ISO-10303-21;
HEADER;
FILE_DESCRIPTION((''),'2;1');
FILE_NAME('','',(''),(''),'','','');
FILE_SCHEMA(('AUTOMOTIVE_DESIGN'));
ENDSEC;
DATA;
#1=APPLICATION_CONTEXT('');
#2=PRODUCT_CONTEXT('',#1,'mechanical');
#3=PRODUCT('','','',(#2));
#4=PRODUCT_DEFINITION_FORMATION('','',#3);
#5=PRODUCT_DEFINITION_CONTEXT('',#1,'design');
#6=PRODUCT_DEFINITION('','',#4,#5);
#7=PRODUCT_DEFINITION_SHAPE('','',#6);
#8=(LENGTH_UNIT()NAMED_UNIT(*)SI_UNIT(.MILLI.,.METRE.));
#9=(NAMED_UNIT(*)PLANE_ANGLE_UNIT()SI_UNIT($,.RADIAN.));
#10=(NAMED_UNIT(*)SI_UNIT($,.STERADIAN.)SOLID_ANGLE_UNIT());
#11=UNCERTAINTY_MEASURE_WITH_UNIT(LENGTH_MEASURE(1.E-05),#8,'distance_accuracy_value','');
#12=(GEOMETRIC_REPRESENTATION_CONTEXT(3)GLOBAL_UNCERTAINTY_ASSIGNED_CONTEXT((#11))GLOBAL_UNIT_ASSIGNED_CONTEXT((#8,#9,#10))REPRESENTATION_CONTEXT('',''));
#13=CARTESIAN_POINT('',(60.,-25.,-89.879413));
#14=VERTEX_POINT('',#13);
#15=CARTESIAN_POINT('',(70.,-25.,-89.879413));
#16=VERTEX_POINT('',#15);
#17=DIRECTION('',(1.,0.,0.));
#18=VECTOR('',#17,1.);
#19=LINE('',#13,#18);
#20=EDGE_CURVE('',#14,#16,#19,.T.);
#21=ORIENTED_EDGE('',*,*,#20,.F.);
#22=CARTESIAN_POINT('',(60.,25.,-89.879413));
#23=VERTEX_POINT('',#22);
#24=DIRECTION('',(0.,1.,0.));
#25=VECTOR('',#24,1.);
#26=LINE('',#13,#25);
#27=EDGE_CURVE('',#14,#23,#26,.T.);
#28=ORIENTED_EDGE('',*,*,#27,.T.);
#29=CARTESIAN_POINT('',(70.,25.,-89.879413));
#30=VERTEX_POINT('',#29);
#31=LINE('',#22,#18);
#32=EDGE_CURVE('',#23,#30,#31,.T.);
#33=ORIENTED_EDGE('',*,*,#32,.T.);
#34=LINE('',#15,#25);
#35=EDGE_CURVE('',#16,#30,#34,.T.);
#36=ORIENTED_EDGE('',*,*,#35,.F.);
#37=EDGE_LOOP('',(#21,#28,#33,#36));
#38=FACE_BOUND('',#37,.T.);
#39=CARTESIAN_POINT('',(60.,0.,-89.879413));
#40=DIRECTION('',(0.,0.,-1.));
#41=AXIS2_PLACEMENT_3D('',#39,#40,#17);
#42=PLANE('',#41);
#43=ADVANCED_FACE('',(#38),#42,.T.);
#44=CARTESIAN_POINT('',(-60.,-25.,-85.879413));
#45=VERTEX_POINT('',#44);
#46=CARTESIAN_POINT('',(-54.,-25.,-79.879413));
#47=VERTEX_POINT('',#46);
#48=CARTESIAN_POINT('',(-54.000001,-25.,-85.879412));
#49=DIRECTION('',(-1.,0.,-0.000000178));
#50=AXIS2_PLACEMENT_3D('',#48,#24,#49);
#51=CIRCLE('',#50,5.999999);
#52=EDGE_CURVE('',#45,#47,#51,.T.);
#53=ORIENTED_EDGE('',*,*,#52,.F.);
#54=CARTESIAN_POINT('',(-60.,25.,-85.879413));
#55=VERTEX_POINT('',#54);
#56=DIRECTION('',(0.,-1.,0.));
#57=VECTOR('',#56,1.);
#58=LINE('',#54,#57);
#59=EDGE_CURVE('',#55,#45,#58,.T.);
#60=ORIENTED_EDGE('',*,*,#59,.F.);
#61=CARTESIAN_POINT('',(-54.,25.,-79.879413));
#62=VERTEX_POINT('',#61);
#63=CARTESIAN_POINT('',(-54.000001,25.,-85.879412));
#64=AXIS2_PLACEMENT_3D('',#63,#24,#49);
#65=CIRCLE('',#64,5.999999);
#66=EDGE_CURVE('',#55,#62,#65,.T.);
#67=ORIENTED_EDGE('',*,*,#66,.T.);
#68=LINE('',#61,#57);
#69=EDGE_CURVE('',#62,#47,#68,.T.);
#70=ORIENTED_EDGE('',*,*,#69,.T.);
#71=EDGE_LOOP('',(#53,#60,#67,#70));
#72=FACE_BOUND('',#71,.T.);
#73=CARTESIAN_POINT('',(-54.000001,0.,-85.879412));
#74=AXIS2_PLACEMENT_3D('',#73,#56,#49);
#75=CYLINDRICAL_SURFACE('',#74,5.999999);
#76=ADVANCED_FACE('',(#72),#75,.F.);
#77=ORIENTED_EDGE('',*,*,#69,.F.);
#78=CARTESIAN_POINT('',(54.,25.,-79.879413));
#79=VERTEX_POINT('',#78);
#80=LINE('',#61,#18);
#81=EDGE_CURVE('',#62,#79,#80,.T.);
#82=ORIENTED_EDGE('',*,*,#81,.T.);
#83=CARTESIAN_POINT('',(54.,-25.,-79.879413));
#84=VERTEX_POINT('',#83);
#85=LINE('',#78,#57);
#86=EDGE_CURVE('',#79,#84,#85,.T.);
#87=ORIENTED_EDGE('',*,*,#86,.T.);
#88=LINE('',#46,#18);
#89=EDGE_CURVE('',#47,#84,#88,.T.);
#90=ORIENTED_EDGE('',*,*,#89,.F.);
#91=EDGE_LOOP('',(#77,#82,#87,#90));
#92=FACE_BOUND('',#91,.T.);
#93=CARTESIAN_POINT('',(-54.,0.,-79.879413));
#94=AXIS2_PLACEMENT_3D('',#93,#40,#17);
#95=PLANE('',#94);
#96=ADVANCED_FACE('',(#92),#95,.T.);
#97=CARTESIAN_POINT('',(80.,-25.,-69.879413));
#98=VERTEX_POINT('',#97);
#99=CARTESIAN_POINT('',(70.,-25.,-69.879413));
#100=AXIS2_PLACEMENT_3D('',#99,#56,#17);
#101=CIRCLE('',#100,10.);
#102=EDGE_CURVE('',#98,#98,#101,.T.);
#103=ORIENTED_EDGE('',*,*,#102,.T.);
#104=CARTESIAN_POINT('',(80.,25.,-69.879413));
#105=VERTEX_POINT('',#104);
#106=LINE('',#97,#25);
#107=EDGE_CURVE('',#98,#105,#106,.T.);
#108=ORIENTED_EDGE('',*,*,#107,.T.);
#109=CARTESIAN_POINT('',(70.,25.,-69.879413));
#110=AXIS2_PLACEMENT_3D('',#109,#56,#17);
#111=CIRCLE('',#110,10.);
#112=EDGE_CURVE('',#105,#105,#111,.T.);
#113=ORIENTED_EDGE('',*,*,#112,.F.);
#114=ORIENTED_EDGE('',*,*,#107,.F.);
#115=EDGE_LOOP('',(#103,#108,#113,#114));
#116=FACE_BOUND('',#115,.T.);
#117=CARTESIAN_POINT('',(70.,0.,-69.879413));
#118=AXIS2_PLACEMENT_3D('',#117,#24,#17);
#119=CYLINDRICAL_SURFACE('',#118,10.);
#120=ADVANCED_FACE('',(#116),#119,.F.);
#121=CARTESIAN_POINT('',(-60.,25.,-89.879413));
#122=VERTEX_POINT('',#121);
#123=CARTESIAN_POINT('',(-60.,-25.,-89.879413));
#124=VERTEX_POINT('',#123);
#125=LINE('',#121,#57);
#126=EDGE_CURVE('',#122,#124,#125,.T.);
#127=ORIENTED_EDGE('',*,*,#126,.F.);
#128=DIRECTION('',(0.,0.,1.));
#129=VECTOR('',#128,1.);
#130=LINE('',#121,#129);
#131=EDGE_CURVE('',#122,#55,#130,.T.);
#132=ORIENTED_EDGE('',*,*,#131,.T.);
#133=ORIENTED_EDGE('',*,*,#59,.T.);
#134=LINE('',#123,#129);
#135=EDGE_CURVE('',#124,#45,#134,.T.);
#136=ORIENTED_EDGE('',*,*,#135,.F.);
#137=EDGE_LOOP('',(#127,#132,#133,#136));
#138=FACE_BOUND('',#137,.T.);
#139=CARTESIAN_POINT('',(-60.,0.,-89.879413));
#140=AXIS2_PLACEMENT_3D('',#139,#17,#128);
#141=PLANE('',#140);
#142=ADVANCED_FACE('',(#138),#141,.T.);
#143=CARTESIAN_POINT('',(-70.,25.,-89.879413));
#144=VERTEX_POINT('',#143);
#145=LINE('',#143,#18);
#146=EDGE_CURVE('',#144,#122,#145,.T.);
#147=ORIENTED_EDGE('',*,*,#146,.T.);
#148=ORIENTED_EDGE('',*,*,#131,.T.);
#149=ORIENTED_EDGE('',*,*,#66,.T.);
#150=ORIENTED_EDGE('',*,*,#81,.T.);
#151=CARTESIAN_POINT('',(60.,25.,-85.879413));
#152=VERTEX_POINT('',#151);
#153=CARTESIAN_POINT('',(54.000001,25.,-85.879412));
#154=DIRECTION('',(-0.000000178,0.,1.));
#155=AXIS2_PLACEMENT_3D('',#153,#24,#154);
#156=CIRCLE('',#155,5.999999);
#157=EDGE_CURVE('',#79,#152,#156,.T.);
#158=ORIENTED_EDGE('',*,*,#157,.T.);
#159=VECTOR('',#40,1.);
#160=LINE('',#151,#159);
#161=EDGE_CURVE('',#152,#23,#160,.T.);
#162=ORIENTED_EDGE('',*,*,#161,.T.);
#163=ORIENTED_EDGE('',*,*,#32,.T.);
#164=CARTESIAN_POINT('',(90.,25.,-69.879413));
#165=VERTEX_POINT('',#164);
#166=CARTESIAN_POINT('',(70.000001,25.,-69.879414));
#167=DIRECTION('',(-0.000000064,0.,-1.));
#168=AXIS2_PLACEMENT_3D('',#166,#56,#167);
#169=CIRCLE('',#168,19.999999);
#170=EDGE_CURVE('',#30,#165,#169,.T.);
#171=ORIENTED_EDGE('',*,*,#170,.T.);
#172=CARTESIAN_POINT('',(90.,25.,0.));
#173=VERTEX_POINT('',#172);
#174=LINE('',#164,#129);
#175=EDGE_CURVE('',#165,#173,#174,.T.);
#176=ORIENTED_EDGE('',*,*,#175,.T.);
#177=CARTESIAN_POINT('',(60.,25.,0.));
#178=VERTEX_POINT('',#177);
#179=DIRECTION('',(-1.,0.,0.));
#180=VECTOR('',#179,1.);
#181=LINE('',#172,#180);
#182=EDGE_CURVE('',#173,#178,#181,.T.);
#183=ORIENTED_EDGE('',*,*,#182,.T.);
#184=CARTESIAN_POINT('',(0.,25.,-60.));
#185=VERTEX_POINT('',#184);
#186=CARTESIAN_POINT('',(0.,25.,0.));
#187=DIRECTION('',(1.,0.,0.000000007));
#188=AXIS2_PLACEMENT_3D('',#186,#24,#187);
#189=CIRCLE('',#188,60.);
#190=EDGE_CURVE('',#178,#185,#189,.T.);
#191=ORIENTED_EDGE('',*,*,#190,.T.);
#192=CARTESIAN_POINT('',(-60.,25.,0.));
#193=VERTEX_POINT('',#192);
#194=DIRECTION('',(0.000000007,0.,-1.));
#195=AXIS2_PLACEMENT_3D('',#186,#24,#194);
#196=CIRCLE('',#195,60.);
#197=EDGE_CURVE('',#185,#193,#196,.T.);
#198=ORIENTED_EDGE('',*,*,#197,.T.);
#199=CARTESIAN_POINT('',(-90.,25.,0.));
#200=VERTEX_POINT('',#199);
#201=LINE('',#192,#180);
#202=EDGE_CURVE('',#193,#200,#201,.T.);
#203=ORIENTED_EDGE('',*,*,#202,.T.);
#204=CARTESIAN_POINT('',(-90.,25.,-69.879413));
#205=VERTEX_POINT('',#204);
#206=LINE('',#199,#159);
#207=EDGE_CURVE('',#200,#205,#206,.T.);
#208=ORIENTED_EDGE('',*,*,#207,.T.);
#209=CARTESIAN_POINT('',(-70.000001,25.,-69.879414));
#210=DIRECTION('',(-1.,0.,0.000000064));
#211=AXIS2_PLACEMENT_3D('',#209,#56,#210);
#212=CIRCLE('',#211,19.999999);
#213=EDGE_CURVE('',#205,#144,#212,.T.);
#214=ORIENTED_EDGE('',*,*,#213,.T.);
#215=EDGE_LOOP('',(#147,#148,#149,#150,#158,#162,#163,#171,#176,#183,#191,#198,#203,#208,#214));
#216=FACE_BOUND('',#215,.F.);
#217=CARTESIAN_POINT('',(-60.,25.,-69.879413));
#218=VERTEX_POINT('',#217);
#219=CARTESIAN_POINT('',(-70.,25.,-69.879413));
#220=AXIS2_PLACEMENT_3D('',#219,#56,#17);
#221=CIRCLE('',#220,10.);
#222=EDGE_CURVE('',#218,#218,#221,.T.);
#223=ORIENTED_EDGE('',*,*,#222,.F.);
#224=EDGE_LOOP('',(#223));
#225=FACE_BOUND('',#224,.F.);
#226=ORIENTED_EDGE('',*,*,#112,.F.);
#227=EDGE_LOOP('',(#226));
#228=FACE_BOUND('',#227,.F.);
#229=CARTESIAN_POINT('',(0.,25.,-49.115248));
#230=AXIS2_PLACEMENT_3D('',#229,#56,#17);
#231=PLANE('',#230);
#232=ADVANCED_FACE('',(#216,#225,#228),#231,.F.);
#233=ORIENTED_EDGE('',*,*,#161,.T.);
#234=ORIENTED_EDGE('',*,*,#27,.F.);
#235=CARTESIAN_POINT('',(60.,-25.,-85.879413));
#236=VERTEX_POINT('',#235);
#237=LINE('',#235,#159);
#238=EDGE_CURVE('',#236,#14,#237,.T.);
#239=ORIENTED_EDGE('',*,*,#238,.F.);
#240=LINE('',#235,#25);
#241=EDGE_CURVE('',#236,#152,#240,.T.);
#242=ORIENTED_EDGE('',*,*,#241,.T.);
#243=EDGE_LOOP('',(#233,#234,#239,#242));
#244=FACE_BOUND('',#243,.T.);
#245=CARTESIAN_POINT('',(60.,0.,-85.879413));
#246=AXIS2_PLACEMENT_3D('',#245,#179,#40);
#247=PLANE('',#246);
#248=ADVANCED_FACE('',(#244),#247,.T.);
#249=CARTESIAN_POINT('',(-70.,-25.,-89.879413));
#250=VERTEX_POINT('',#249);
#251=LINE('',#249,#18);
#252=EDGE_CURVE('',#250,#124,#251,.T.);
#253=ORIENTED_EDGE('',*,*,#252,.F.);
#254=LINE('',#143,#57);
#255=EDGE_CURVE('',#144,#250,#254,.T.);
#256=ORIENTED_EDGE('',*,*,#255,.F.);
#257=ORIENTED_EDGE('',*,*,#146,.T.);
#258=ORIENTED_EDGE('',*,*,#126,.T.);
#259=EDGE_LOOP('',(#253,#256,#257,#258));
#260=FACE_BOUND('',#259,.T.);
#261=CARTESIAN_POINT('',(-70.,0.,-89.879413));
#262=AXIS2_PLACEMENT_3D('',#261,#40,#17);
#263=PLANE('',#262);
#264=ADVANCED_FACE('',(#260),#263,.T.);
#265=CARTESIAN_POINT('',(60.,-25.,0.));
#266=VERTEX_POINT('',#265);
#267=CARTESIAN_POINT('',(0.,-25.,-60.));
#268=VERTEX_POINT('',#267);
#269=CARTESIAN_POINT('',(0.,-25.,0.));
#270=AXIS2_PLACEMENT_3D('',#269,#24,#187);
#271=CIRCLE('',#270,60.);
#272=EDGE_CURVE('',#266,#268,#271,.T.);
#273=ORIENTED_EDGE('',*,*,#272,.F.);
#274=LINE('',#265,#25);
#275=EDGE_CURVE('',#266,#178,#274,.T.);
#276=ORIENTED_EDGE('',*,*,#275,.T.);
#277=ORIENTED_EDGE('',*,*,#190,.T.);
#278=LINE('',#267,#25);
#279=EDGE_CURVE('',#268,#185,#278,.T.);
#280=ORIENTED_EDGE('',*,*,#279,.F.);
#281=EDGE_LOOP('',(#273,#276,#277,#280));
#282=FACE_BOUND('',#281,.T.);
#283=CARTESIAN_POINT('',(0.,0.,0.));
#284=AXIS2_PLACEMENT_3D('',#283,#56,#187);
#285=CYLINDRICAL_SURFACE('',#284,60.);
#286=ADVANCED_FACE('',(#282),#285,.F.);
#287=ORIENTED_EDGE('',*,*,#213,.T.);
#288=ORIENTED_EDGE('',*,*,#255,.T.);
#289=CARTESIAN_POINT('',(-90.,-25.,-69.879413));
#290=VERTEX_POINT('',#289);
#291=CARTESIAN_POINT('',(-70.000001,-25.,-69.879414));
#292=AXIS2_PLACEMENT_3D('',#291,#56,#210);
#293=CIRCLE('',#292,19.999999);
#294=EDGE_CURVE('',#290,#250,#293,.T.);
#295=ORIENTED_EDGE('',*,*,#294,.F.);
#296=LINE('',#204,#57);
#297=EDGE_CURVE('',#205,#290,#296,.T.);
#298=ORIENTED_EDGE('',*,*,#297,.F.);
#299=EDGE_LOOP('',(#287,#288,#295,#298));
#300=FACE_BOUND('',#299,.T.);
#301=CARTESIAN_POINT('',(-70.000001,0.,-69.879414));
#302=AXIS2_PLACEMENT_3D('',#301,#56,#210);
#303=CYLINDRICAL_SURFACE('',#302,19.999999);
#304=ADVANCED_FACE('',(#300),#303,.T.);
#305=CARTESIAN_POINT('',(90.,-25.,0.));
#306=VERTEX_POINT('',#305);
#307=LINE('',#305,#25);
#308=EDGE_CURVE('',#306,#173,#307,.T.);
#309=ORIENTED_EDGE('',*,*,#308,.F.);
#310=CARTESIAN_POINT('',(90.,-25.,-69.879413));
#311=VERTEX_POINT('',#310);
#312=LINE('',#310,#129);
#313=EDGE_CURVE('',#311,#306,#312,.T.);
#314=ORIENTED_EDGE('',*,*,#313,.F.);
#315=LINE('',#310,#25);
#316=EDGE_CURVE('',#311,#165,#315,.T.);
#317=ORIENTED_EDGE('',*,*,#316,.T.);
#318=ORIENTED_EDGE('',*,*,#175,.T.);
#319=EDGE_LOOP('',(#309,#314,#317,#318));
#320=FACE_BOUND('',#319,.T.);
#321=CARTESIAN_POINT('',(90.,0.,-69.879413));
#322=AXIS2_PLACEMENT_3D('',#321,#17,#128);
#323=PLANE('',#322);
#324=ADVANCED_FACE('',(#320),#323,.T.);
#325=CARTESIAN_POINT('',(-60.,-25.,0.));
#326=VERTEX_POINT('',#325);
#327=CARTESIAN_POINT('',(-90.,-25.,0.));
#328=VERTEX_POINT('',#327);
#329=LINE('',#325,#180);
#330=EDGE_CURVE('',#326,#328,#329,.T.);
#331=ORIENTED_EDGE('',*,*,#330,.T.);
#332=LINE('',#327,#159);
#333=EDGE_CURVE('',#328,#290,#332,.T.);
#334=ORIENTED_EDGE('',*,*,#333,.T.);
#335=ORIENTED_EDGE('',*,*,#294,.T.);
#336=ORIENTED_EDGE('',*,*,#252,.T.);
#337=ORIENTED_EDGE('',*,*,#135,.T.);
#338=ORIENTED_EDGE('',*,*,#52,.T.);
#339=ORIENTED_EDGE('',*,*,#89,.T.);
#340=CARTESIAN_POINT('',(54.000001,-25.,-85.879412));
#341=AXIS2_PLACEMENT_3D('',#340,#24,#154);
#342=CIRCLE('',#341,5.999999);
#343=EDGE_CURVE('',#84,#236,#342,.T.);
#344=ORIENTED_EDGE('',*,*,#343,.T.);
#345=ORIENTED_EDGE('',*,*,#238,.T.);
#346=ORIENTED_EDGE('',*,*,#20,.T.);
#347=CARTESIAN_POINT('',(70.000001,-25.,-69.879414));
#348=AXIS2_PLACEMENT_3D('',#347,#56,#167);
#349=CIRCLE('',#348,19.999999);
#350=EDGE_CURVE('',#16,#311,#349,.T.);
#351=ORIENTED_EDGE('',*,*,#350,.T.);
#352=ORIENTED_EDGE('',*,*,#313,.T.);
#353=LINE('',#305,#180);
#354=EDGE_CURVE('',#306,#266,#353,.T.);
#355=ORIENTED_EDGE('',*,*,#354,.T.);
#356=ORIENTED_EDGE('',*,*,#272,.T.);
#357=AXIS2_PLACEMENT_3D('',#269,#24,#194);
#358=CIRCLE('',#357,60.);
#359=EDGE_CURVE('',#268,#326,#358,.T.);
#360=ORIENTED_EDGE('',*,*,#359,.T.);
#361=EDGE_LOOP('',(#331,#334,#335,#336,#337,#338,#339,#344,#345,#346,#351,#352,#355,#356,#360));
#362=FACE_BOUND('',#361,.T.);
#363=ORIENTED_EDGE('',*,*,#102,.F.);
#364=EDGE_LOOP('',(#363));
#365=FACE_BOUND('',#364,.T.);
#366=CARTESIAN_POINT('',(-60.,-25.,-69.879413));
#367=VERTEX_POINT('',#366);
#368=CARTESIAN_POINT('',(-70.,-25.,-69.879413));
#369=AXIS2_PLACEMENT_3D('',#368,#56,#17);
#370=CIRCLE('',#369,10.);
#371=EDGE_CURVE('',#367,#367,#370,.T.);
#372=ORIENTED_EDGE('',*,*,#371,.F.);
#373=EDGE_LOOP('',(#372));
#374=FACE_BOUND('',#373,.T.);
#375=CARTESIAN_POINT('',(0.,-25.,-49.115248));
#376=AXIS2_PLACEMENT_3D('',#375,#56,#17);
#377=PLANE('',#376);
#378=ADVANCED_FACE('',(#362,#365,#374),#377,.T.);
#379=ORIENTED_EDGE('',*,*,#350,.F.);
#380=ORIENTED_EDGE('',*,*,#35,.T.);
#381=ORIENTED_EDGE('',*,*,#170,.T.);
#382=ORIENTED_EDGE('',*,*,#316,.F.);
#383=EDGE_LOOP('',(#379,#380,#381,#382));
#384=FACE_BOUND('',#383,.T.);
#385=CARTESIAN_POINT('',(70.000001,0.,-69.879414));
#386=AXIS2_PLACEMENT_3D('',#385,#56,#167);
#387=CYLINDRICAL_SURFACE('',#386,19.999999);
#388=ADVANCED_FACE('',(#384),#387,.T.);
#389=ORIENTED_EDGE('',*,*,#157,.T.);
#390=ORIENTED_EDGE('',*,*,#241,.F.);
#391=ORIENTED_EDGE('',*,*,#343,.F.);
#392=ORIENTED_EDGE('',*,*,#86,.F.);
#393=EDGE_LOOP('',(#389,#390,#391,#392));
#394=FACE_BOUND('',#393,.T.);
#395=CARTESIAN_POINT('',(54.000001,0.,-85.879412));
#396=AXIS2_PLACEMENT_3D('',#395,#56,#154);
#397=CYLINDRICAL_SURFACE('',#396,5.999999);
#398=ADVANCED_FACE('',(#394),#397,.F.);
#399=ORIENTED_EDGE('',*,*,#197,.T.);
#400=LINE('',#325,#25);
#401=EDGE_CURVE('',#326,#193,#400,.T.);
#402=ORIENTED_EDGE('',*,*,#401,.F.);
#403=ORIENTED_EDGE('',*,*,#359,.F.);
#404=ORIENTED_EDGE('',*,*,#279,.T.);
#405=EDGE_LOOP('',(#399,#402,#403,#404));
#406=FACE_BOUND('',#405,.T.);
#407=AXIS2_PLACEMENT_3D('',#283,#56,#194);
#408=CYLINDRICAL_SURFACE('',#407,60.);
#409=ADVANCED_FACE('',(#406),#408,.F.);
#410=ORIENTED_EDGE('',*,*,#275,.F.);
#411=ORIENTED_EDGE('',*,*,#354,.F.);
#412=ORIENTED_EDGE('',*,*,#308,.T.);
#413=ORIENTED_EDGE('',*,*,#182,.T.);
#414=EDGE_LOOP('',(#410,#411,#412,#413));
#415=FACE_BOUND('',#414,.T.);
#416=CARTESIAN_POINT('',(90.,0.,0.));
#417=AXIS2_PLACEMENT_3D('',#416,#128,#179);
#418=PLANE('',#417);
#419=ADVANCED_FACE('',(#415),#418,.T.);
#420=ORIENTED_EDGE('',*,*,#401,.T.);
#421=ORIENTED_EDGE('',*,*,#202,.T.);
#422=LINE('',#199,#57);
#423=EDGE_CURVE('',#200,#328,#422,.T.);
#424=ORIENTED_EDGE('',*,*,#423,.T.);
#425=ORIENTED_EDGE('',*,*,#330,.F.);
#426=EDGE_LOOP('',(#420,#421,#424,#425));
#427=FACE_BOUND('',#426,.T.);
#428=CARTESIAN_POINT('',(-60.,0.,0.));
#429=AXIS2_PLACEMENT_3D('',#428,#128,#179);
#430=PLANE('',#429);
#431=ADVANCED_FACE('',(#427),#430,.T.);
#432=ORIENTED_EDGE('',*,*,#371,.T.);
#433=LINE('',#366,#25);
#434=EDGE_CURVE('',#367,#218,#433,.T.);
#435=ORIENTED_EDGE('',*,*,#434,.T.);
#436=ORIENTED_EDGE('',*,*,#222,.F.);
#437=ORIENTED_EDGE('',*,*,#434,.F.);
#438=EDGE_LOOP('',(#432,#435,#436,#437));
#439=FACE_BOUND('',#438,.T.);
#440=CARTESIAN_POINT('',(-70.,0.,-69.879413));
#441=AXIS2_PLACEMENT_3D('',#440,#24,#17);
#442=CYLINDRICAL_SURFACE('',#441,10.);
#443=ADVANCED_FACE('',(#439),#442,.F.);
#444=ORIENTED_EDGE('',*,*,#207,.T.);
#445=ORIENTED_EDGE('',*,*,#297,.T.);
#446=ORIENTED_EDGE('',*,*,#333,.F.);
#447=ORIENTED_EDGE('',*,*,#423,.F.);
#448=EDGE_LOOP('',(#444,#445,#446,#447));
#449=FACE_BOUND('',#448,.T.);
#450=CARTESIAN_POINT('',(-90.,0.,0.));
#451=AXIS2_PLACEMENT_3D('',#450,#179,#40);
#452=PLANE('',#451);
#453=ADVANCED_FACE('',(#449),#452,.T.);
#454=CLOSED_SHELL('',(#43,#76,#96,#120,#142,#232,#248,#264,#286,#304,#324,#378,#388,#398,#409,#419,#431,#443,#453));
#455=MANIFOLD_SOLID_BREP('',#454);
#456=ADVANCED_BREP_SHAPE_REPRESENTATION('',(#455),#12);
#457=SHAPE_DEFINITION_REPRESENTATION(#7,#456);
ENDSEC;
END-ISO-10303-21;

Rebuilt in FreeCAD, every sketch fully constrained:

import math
import FreeCAD as App
import Part
import Sketcher

V = App.Vector

doc = App.newDocument("Part")
body = doc.addObject("PartDesign::Body", "Body")

sketch1 = doc.addObject("Sketcher::SketchObject", "Sketch")
body.addObject(sketch1)
sketch1.AttachmentSupport = (doc.XZ_Plane, [""])
sketch1.MapMode = "FlatFace"
sketch1.addGeometry([
    Part.LineSegment(V(-60, 0, 0), V(-90, 0, 0)),
    Part.LineSegment(V(-90, 0, 0), V(-90, -69.879413, 0)),
    Part.ArcOfCircle(Part.Circle(V(-70.000001, -69.879414, 0), V(0, 0, 1), 19.999999), math.radians(179.999996), math.radians(270.000004)),
    Part.LineSegment(V(-70, -89.879413, 0), V(-60, -89.879413, 0)),
    Part.LineSegment(V(-60, -89.879413, 0), V(-60, -85.879413, 0)),
    Part.ArcOfCircle(Part.Circle(V(-54.000001, -85.879412, 0), V(0, 0, 1), 5.999999), math.radians(89.99999), math.radians(180.00001)),
    Part.LineSegment(V(-54, -79.879413, 0), V(54, -79.879413, 0)),
    Part.ArcOfCircle(Part.Circle(V(54.000001, -85.879412, 0), V(0, 0, 1), 5.999999), math.radians(-0.00001), math.radians(90.00001)),
    Part.LineSegment(V(60, -85.879413, 0), V(60, -89.879413, 0)),
    Part.LineSegment(V(60, -89.879413, 0), V(70, -89.879413, 0)),
    Part.ArcOfCircle(Part.Circle(V(70.000001, -69.879414, 0), V(0, 0, 1), 19.999999), math.radians(-90.000004), math.radians(0.000004)),
    Part.LineSegment(V(90, -69.879413, 0), V(90, 0, 0)),
    Part.LineSegment(V(90, 0, 0), V(60, 0, 0)),
    Part.ArcOfCircle(Part.Circle(V(0, 0, 0), V(0, 0, 1), 60), math.radians(-90), math.radians(0)),
    Part.ArcOfCircle(Part.Circle(V(0, 0, 0), V(0, 0, 1), 60), math.radians(180), math.radians(270)),
    Part.Circle(V(-70, -69.879413, 0), V(0, 0, 1), 10),
    Part.Circle(V(70, -69.879413, 0), V(0, 0, 1), 10),
], False)
sketch1.addConstraint([
    Sketcher.Constraint("Coincident", 0, 2, 1, 1),
    Sketcher.Constraint("Tangent", 1, 2, 2, 1),
    Sketcher.Constraint("Tangent", 2, 2, 3, 1),
    Sketcher.Constraint("Coincident", 3, 2, 4, 1),
    Sketcher.Constraint("Tangent", 4, 2, 5, 2),
    Sketcher.Constraint("Tangent", 5, 1, 6, 1),
    Sketcher.Constraint("Tangent", 6, 2, 7, 2),
    Sketcher.Constraint("Tangent", 7, 1, 8, 1),
    Sketcher.Constraint("Coincident", 8, 2, 9, 1),
    Sketcher.Constraint("Tangent", 9, 2, 10, 1),
    Sketcher.Constraint("Tangent", 10, 2, 11, 1),
    Sketcher.Constraint("Coincident", 11, 2, 12, 1),
    Sketcher.Constraint("Coincident", 12, 2, 13, 2),
    Sketcher.Constraint("Tangent", 13, 1, 14, 2),
    Sketcher.Constraint("Coincident", 14, 1, 0, 1),
    Sketcher.Constraint("Horizontal", 0),
    Sketcher.Constraint("Vertical", 1),
    Sketcher.Constraint("Horizontal", 3),
    Sketcher.Constraint("Vertical", 4),
    Sketcher.Constraint("Horizontal", 6),
    Sketcher.Constraint("Vertical", 8),
    Sketcher.Constraint("Horizontal", 9),
    Sketcher.Constraint("Vertical", 11),
    Sketcher.Constraint("Horizontal", 12),
    Sketcher.Constraint("Coincident", 13, 3, -1, 1),
    Sketcher.Constraint("Coincident", 15, 3, 2, 3),
    Sketcher.Constraint("Coincident", 16, 3, 10, 3),
    Sketcher.Constraint("Equal", 5, 7),
    Sketcher.Constraint("Equal", 2, 10),
    Sketcher.Constraint("Equal", 13, 14),
    Sketcher.Constraint("Equal", 15, 16),
    Sketcher.Constraint("Symmetric", 0, 2, 11, 2, -1, 1),
    Sketcher.Constraint("Symmetric", 3, 2, 8, 2, -2),
    Sketcher.Constraint("PointOnObject", 0, 2, -1),
    Sketcher.Constraint("PointOnObject", 13, 1, -2),
    Sketcher.Constraint("Vertical", 8, 2, 12, 2),
    Sketcher.Constraint("Diameter", 15, 20.0),
    Sketcher.Constraint("Radius", 2, 19.999999),
    Sketcher.Constraint("Radius", 5, 5.999999),
    Sketcher.Constraint("Radius", 13, 60.0),
    Sketcher.Constraint("DistanceX", 0, 2, 0, 1, 30.0),
    Sketcher.Constraint("DistanceY", 4, 1, 4, 2, 4.0),
    Sketcher.Constraint("DistanceY", 1, 2, 1, 1, 69.879413),
])
pad1 = doc.addObject("PartDesign::Pad", "Pad")
body.addObject(pad1)
pad1.Profile = sketch1
pad1.Length = 50
pad1.Midplane = True

doc.recompute()
